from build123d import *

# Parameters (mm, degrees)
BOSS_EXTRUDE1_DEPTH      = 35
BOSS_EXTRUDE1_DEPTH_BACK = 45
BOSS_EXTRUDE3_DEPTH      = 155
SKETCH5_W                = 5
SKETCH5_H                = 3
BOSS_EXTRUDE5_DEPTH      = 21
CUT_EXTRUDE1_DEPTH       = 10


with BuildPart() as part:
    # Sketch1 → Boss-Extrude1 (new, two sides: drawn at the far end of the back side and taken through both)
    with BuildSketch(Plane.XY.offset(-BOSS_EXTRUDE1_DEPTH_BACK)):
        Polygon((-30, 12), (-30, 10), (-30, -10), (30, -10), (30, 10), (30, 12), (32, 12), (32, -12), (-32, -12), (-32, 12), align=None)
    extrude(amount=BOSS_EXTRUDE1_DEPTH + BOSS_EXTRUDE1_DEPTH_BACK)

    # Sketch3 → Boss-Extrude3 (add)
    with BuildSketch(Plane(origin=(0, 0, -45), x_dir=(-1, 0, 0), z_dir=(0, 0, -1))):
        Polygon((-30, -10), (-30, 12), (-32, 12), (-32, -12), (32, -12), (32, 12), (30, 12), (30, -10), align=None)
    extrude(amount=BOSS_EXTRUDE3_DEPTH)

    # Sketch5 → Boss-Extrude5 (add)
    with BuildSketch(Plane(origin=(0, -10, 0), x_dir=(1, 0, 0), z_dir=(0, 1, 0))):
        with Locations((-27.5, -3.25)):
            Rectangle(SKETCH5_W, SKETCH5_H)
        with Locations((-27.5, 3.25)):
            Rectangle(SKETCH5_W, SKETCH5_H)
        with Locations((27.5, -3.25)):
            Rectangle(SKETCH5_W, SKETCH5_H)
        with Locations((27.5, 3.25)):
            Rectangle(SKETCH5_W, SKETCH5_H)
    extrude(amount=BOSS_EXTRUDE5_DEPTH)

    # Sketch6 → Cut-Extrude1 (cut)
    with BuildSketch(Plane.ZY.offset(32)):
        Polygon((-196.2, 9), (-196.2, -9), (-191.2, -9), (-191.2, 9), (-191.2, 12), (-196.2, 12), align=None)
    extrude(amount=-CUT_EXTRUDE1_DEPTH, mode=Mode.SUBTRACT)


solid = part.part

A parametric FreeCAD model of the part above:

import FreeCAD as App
import Part
import Sketcher
from FreeCAD import Vector


def add_polygon(sketch, points):
    """Adds a closed chain of lines whose ends are joined by coincident constraints."""
    first, n = sketch.GeometryCount, len(points)
    for a, b in zip(points, points[1:] + points[:1]):
        sketch.addGeometry(Part.LineSegment(App.Vector(*a, 0), App.Vector(*b, 0)), False)
    for i in range(n):
        sketch.addConstraint(Sketcher.Constraint("Coincident", first + i, 2, first + (i + 1) % n, 1))

doc = App.newDocument("Part")
params = doc.addObject("Spreadsheet::Sheet", "Params")
for row, (alias, value) in enumerate([
    ("sketch1_width", "2 mm"),
    ("sketch1_width2", "64 mm"),
    ("sketch1_height", "22 mm"),
    ("sketch1_height2", "24 mm"),
    ("pad1_length", "35 mm"),
    ("pad1_length2", "45 mm"),
    ("sketch2_width", "2 mm"),
    ("sketch2_width2", "64 mm"),
    ("sketch2_height", "22 mm"),
    ("sketch2_height2", "24 mm"),
    ("pad2_length", "155 mm"),
    ("sketch3_width", "5 mm"),
    ("sketch3_height", "3 mm"),
    ("pad3_length", "21 mm"),
    ("sketch4_width", "21 mm"),
    ("sketch4_height", "5 mm"),
    ("pocket1_length", "10 mm"),
], start=1):
    params.set(f"A{row}", alias)
    params.set(f"B{row}", "=" + value)
    params.setAlias(f"B{row}", alias)

body = doc.addObject("PartDesign::Body", "Body")

# Sketch on XY plane
sketch1 = body.newObject("Sketcher::SketchObject", "Sketch")
sketch1.AttachmentSupport = (doc.getObject("XY_Plane"), [""])
sketch1.MapMode = "FlatFace"
add_polygon(sketch1, [(-30, -10), (-30, 12), (-32, 12), (-32, -12), (32, -12), (32, 12), (30, 12), (30, -10)])  # lines 0-7
sketch1.addConstraint([
    Sketcher.Constraint("Vertical", 0),
    Sketcher.Constraint("Horizontal", 1),
    Sketcher.Constraint("Vertical", 2),
    Sketcher.Constraint("Horizontal", 3),
    Sketcher.Constraint("Vertical", 4),
    Sketcher.Constraint("Horizontal", 5),
    Sketcher.Constraint("Vertical", 6),
    Sketcher.Constraint("Horizontal", 7),
    Sketcher.Constraint("Symmetric", 1, 2, 3, 2, -1, 1),
    Sketcher.Constraint("Symmetric", 0, 2, 5, 2, -2),
    Sketcher.Constraint("DistanceX", 1, 2, 1, 1, 2.0),
    Sketcher.Constraint("DistanceX", 3, 1, 3, 2, 64.0),
    Sketcher.Constraint("DistanceY", 0, 1, 0, 2, 22.0),
    Sketcher.Constraint("DistanceY", 2, 2, 2, 1, 24.0),
])
sketch1.setExpression("Constraints[18]", "Params.sketch1_width")
sketch1.setExpression("Constraints[19]", "Params.sketch1_width2")
sketch1.setExpression("Constraints[20]", "Params.sketch1_height")
sketch1.setExpression("Constraints[21]", "Params.sketch1_height2")
pad1 = body.newObject("PartDesign::Pad", "Pad")
pad1.Profile = sketch1
pad1.Type = "TwoLengths"
pad1.setExpression("Length", "Params.pad1_length")
pad1.setExpression("Length2", "Params.pad1_length2")

# Sketch on XY plane
sketch2 = body.newObject("Sketcher::SketchObject", "Sketch001")
sketch2.AttachmentSupport = (doc.getObject("XY_Plane"), [""])
sketch2.MapMode = "FlatFace"
sketch2.AttachmentOffset = App.Placement(Vector(0, 0, -45), App.Rotation())
add_polygon(sketch2, [(30, -10), (30, 12), (32, 12), (32, -12), (-32, -12), (-32, 12), (-30, 12), (-30, -10)])  # lines 0-7
sketch2.addConstraint([
    Sketcher.Constraint("Vertical", 0),
    Sketcher.Constraint("Horizontal", 1),
    Sketcher.Constraint("Vertical", 2),
    Sketcher.Constraint("Horizontal", 3),
    Sketcher.Constraint("Vertical", 4),
    Sketcher.Constraint("Horizontal", 5),
    Sketcher.Constraint("Vertical", 6),
    Sketcher.Constraint("Horizontal", 7),
    Sketcher.Constraint("Symmetric", 1, 2, 3, 2, -1, 1),
    Sketcher.Constraint("Symmetric", 0, 2, 5, 2, -2),
    Sketcher.Constraint("DistanceX", 1, 1, 1, 2, 2.0),
    Sketcher.Constraint("DistanceX", 3, 2, 3, 1, 64.0),
    Sketcher.Constraint("DistanceY", 0, 1, 0, 2, 22.0),
    Sketcher.Constraint("DistanceY", 2, 2, 2, 1, 24.0),
])
sketch2.setExpression("Constraints[18]", "Params.sketch2_width")
sketch2.setExpression("Constraints[19]", "Params.sketch2_width2")
sketch2.setExpression("Constraints[20]", "Params.sketch2_height")
sketch2.setExpression("Constraints[21]", "Params.sketch2_height2")
pad2 = body.newObject("PartDesign::Pad", "Pad001")
pad2.Profile = sketch2
pad2.setExpression("Length", "Params.pad2_length")
pad2.Reversed = True

# Sketch on XZ plane
sketch3 = body.newObject("Sketcher::SketchObject", "Sketch002")
sketch3.AttachmentSupport = (doc.getObject("XZ_Plane"), [""])
sketch3.MapMode = "FlatFace"
sketch3.AttachmentOffset = App.Placement(Vector(0, 0, 10), App.Rotation())
add_polygon(sketch3, [(-30, 1.8), (-30, 4.8), (-25, 4.8), (-25, 1.8)])  # lines 0-3
add_polygon(sketch3, [(-30, -4.8), (-30, -1.8), (-25, -1.8), (-25, -4.8)])  # lines 4-7
add_polygon(sketch3, [(25, 1.8), (25, 4.8), (30, 4.8), (30, 1.8)])  # lines 8-11
add_polygon(sketch3, [(25, -4.8), (25, -1.8), (30, -1.8), (30, -4.8)])  # lines 12-15
sketch3.addConstraint([
    Sketcher.Constraint("Vertical", 0),
    Sketcher.Constraint("Horizontal", 1),
    Sketcher.Constraint("Vertical", 2),
    Sketcher.Constraint("Horizontal", 3),
    Sketcher.Constraint("Vertical", 4),
    Sketcher.Constraint("Horizontal", 5),
    Sketcher.Constraint("Vertical", 6),
    Sketcher.Constraint("Horizontal", 7),
    Sketcher.Constraint("Vertical", 8),
    Sketcher.Constraint("Horizontal", 9),
    Sketcher.Constraint("Vertical", 10),
    Sketcher.Constraint("Horizontal", 11),
    Sketcher.Constraint("Vertical", 12),
    Sketcher.Constraint("Horizontal", 13),
    Sketcher.Constraint("Vertical", 14),
    Sketcher.Constraint("Horizontal", 15),
    Sketcher.Constraint("Symmetric", 6, 2, 8, 2, -1, 1),
    Sketcher.Constraint("Symmetric", 4, 2, 10, 2, -1, 1),
    Sketcher.Constraint("Symmetric", 2, 2, 12, 2, -1, 1),
    Sketcher.Constraint("Symmetric", 0, 2, 14, 2, -1, 1),
    Sketcher.Constraint("Symmetric", 1, 2, 8, 2, -2),
    Sketcher.Constraint("Symmetric", 3, 2, 10, 2, -2),
    Sketcher.Constraint("DistanceX", 1, 1, 1, 2, 5.0),
    Sketcher.Constraint("DistanceY", 0, 1, 0, 2, 3.0),
    Sketcher.Constraint("DistanceX", 0, 2, -1, 1, 30.0),
    Sketcher.Constraint("DistanceY", 4, 2, 3, 2, 3.5),
])
sketch3.setExpression("Constraints[38]", "Params.sketch3_width")
sketch3.setExpression("Constraints[39]", "Params.sketch3_height")
pad3 = body.newObject("PartDesign::Pad", "Pad002")
pad3.Profile = sketch3
pad3.setExpression("Length", "Params.pad3_length")
pad3.Reversed = True

# Sketch on YZ plane
sketch4 = body.newObject("Sketcher::SketchObject", "Sketch003")
sketch4.AttachmentSupport = (doc.getObject("YZ_Plane"), [""])
sketch4.MapMode = "FlatFace"
sketch4.AttachmentOffset = App.Placement(Vector(0, 0, -32), App.Rotation())
add_polygon(sketch4, [(-9, -196), (-9, -191), (12, -191), (12, -196)])  # lines 0-3
sketch4.addConstraint([
    Sketcher.Constraint("Vertical", 0),
    Sketcher.Constraint("Horizontal", 1),
    Sketcher.Constraint("Vertical", 2),
    Sketcher.Constraint("Horizontal", 3),
    Sketcher.Constraint("DistanceX", 1, 1, 1, 2, 21.0),
    Sketcher.Constraint("DistanceY", 0, 1, 0, 2, 5.0),
    Sketcher.Constraint("DistanceX", 0, 2, -1, 1, 9.0),
    Sketcher.Constraint("DistanceY", 0, 2, -1, 1, 191.2),
])
sketch4.setExpression("Constraints[8]", "Params.sketch4_width")
sketch4.setExpression("Constraints[9]", "Params.sketch4_height")
pocket1 = body.newObject("PartDesign::Pocket", "Pocket")
pocket1.Profile = sketch4
pocket1.setExpression("Length", "Params.pocket1_length")
pocket1.Reversed = True

doc.recompute()
